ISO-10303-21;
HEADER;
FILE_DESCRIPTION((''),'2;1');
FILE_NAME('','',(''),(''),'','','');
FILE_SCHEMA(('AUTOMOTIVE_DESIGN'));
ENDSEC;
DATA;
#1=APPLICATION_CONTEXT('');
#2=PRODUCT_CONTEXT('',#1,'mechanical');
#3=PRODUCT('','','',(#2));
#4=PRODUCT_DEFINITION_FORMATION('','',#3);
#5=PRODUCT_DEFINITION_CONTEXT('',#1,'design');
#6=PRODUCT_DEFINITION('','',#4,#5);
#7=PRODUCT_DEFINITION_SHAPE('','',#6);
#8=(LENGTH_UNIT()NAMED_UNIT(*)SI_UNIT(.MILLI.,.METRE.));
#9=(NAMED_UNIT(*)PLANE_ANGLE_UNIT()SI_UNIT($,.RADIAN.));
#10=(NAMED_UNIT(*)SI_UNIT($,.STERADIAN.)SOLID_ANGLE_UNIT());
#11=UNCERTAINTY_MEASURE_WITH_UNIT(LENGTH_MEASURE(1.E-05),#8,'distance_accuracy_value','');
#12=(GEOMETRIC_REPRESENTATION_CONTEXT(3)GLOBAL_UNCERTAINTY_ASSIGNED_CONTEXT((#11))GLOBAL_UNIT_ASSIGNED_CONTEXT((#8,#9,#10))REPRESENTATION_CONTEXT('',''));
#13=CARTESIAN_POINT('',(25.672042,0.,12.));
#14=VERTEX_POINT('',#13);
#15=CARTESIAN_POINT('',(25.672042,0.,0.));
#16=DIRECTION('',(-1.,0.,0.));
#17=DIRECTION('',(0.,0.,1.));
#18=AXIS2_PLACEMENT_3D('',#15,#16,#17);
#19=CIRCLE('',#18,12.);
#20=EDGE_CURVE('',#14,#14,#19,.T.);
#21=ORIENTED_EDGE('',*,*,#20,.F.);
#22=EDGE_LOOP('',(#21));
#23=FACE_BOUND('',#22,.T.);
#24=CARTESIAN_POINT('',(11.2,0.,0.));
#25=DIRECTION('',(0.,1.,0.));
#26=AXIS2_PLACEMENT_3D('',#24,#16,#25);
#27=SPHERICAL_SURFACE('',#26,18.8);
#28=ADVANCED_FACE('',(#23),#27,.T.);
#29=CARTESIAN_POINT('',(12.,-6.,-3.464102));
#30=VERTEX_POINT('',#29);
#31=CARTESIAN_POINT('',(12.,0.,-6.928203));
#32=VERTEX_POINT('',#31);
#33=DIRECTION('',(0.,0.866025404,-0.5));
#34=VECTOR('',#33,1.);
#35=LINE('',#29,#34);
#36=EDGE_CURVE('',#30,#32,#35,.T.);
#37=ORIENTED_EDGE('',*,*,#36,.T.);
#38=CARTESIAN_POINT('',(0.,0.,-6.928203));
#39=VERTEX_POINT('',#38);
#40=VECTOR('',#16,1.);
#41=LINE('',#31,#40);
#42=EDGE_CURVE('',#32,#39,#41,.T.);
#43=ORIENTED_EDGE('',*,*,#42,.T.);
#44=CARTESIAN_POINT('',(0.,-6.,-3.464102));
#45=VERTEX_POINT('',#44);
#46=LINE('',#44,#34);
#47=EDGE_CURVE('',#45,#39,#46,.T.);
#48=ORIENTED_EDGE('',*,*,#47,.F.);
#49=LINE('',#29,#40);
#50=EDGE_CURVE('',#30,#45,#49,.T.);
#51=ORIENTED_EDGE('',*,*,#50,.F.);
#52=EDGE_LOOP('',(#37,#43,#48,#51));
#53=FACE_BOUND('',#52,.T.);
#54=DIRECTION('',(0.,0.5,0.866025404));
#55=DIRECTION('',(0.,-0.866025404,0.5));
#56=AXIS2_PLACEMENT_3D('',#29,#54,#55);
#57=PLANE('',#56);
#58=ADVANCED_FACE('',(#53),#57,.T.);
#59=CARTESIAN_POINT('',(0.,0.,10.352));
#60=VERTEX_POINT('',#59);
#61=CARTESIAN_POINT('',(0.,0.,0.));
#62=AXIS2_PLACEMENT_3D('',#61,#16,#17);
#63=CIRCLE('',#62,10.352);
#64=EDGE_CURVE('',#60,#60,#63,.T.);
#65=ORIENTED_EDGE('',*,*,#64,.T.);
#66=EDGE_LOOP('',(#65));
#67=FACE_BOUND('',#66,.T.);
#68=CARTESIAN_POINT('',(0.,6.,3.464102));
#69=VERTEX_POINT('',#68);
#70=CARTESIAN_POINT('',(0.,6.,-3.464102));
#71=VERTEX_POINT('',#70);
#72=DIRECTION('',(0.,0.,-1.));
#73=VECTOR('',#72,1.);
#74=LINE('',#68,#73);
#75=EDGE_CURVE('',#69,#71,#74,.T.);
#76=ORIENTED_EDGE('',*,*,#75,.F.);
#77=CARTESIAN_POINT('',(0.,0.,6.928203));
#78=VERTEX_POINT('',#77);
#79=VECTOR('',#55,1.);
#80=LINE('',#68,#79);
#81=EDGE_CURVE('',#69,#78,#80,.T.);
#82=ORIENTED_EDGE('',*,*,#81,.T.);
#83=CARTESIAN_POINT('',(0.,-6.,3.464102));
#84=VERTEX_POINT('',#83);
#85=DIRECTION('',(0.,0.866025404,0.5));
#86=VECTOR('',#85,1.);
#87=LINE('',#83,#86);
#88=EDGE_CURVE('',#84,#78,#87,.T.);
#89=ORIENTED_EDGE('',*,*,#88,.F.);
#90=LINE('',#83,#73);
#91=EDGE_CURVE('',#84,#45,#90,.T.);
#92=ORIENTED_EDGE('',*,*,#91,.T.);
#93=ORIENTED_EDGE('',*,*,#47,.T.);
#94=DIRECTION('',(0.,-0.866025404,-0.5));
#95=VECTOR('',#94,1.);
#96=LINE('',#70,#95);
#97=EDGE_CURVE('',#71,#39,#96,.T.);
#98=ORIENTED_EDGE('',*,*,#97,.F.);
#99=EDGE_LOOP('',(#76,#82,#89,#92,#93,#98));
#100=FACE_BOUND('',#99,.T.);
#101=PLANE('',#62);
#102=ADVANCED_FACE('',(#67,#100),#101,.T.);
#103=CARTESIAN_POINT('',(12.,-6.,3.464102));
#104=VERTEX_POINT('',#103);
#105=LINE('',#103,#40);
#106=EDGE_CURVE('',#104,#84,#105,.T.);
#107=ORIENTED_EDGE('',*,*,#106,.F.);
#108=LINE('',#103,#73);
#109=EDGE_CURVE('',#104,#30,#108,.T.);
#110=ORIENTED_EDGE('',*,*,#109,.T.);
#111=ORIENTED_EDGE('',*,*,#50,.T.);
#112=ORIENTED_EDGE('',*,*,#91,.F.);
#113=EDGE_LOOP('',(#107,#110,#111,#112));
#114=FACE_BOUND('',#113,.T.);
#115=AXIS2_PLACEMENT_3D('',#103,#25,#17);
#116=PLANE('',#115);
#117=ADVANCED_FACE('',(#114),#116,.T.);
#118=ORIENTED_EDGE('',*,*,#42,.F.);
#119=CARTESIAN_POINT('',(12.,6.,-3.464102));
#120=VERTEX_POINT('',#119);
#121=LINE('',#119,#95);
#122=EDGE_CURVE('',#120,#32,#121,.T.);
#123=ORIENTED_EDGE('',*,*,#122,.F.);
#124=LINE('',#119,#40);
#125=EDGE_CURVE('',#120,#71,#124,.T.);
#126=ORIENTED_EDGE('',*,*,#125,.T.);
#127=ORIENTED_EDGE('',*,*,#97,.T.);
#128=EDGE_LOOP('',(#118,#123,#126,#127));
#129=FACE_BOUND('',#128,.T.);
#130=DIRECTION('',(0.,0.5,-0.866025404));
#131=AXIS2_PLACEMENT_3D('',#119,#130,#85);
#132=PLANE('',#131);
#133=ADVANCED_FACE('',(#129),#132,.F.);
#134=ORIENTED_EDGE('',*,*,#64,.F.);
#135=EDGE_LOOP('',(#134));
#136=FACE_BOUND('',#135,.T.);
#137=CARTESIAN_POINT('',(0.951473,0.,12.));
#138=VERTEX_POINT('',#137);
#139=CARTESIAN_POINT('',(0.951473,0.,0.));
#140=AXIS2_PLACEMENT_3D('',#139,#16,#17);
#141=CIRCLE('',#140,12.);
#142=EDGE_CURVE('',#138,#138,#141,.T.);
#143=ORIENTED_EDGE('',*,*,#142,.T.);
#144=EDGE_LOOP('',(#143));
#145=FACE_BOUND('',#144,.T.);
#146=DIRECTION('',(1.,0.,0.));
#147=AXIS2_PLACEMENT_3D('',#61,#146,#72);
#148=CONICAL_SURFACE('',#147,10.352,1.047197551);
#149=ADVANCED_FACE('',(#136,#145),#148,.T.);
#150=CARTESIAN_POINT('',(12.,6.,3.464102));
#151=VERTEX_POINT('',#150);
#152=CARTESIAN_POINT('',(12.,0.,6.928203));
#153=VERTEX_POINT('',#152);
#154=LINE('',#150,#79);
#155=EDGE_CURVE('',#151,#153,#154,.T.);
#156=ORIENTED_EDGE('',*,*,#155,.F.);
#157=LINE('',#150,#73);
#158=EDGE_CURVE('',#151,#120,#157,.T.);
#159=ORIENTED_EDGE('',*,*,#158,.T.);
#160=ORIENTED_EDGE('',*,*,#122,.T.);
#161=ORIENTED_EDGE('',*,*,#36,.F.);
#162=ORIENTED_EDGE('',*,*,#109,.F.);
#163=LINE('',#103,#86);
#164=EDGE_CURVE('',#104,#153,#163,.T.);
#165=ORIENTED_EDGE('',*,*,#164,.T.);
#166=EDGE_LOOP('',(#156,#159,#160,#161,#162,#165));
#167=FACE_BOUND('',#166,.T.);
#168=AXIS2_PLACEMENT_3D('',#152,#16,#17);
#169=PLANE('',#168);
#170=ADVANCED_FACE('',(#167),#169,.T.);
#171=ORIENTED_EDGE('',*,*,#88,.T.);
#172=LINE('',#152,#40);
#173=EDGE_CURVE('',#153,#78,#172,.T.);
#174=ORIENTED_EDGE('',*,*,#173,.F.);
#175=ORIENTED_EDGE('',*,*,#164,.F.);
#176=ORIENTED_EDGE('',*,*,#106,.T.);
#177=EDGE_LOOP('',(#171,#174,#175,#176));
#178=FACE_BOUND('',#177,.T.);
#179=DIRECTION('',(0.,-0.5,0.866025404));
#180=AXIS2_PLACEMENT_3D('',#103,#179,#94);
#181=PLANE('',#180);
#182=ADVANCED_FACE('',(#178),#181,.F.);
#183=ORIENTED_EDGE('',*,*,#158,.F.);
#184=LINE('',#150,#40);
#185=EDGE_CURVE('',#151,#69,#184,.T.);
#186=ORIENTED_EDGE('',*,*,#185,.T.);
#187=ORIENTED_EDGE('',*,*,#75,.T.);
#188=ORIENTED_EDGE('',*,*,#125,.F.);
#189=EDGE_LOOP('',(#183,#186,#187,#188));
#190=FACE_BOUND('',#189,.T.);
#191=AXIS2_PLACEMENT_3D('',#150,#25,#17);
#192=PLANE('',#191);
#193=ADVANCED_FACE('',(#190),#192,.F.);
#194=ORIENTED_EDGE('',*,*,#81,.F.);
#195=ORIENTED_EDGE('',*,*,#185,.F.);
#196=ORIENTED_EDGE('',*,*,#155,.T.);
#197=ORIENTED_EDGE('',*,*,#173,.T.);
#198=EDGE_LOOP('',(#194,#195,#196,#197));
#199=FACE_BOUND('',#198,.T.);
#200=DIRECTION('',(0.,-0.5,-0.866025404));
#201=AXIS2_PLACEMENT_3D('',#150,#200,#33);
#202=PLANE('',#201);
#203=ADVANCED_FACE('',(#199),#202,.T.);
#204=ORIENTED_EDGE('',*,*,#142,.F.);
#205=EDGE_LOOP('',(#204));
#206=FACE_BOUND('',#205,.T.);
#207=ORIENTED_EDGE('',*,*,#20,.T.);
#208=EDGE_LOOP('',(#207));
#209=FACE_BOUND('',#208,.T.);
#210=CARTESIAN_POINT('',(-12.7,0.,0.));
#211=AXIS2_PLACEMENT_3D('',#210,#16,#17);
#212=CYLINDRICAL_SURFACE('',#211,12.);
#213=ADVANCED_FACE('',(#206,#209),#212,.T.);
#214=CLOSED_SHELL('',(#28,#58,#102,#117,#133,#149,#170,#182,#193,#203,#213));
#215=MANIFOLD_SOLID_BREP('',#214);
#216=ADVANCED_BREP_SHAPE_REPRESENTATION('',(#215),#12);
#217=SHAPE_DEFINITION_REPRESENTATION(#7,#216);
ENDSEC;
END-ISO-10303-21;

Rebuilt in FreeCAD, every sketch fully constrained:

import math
import FreeCAD as App
import Part
import Sketcher
Q = App.Units.Quantity


def add_polygon(sketch, points):
    """Adds a closed chain of lines whose ends are joined by coincident constraints."""
    first, n = sketch.GeometryCount, len(points)
    for a, b in zip(points, points[1:] + points[:1]):
        sketch.addGeometry(Part.LineSegment(App.Vector(*a, 0), App.Vector(*b, 0)), False)
    for i in range(n):
        sketch.addConstraint(Sketcher.Constraint("Coincident", first + i, 2, first + (i + 1) % n, 1))

doc = App.newDocument("Part")
body = doc.addObject("PartDesign::Body", "Body")

# Sketch on XY plane
sketch1 = doc.addObject("Sketcher::SketchObject", "Sketch")
body.addObject(sketch1)
sketch1.AttachmentSupport = (doc.XY_Plane, [""])
sketch1.MapMode = "FlatFace"
sketch1.addGeometry([
    Part.LineSegment(App.Vector(0, 10.4, 0), App.Vector(0, 0, 0)),  # 0
    Part.LineSegment(App.Vector(0, 0, 0), App.Vector(30, 0, 0)),  # 1
    Part.ArcOfCircle(Part.Circle(App.Vector(11.2, 0, 0), App.Vector(0, 0, 1), 18.8), math.radians(0), math.radians(40)),  # 2
    Part.LineSegment(App.Vector(25.7, 12, 0), App.Vector(1, 12, 0)),  # 3
    Part.LineSegment(App.Vector(1, 12, 0), App.Vector(0, 10.4, 0)),  # 4
], False)
sketch1.addConstraint([
    Sketcher.Constraint("Coincident", 0, 2, 1, 1),
    Sketcher.Constraint("Coincident", 1, 2, 2, 1),
    Sketcher.Constraint("Coincident", 2, 2, 3, 1),
    Sketcher.Constraint("Coincident", 3, 2, 4, 1),
    Sketcher.Constraint("Coincident", 4, 2, 0, 1),
    Sketcher.Constraint("Vertical", 0),
    Sketcher.Constraint("Horizontal", 1),
    Sketcher.Constraint("Horizontal", 3),
    Sketcher.Constraint("Coincident", 0, 2, -1, 1),
    Sketcher.Constraint("PointOnObject", 2, 3, -1),
    Sketcher.Constraint("Radius", 2, Q("18.8 mm")),
    Sketcher.Constraint("DistanceX", 1, 1, 1, 2, Q("30 mm")),
    Sketcher.Constraint("Angle", 4, Q("-120 deg")),
    Sketcher.Constraint("DistanceY", -1, 1, 2, 2, Q("12 mm")),
    Sketcher.Constraint("DistanceY", 0, 2, 0, 1, Q("10.352 mm")),
])
revolution = doc.addObject("PartDesign::Revolution", "Revolution")
body.addObject(revolution)
revolution.Profile = sketch1
revolution.ReferenceAxis = (sketch1, ["H_Axis"])
revolution.Angle = 360

# Sketch on YZ plane
sketch2 = doc.addObject("Sketcher::SketchObject", "Sketch001")
body.addObject(sketch2)
sketch2.AttachmentSupport = (doc.YZ_Plane, [""])
sketch2.MapMode = "FlatFace"
add_polygon(sketch2, [(6, 3), (6, -3), (0, -7), (-6, -3), (-6, 3), (0, 7)])  # lines 0-5
sketch2.addConstraint([
    Sketcher.Constraint("Vertical", 0),
    Sketcher.Constraint("Vertical", 3),
    Sketcher.Constraint("Symmetric", 0, 2, 3, 2, -1, 1),
    Sketcher.Constraint("Symmetric", 1, 2, 4, 2, -1, 1),
    Sketcher.Constraint("PointOnObject", 1, 2, -2),
    Sketcher.Constraint("Parallel", 2, 5),
    Sketcher.Constraint("Horizontal", 0, 2, 2, 2),
    Sketcher.Constraint("Angle", 1, Q("-150 deg")),
    Sketcher.Constraint("DistanceX", -1, 1, 0, 2, Q("6 mm")),
    Sketcher.Constraint("DistanceY", 0, 2, -1, 1, Q("3.464102 mm")),
])
pocket1 = doc.addObject("PartDesign::Pocket", "Pocket")
body.addObject(pocket1)
pocket1.Profile = sketch2
pocket1.Length = 12
pocket1.Reversed = True

doc.recompute()
